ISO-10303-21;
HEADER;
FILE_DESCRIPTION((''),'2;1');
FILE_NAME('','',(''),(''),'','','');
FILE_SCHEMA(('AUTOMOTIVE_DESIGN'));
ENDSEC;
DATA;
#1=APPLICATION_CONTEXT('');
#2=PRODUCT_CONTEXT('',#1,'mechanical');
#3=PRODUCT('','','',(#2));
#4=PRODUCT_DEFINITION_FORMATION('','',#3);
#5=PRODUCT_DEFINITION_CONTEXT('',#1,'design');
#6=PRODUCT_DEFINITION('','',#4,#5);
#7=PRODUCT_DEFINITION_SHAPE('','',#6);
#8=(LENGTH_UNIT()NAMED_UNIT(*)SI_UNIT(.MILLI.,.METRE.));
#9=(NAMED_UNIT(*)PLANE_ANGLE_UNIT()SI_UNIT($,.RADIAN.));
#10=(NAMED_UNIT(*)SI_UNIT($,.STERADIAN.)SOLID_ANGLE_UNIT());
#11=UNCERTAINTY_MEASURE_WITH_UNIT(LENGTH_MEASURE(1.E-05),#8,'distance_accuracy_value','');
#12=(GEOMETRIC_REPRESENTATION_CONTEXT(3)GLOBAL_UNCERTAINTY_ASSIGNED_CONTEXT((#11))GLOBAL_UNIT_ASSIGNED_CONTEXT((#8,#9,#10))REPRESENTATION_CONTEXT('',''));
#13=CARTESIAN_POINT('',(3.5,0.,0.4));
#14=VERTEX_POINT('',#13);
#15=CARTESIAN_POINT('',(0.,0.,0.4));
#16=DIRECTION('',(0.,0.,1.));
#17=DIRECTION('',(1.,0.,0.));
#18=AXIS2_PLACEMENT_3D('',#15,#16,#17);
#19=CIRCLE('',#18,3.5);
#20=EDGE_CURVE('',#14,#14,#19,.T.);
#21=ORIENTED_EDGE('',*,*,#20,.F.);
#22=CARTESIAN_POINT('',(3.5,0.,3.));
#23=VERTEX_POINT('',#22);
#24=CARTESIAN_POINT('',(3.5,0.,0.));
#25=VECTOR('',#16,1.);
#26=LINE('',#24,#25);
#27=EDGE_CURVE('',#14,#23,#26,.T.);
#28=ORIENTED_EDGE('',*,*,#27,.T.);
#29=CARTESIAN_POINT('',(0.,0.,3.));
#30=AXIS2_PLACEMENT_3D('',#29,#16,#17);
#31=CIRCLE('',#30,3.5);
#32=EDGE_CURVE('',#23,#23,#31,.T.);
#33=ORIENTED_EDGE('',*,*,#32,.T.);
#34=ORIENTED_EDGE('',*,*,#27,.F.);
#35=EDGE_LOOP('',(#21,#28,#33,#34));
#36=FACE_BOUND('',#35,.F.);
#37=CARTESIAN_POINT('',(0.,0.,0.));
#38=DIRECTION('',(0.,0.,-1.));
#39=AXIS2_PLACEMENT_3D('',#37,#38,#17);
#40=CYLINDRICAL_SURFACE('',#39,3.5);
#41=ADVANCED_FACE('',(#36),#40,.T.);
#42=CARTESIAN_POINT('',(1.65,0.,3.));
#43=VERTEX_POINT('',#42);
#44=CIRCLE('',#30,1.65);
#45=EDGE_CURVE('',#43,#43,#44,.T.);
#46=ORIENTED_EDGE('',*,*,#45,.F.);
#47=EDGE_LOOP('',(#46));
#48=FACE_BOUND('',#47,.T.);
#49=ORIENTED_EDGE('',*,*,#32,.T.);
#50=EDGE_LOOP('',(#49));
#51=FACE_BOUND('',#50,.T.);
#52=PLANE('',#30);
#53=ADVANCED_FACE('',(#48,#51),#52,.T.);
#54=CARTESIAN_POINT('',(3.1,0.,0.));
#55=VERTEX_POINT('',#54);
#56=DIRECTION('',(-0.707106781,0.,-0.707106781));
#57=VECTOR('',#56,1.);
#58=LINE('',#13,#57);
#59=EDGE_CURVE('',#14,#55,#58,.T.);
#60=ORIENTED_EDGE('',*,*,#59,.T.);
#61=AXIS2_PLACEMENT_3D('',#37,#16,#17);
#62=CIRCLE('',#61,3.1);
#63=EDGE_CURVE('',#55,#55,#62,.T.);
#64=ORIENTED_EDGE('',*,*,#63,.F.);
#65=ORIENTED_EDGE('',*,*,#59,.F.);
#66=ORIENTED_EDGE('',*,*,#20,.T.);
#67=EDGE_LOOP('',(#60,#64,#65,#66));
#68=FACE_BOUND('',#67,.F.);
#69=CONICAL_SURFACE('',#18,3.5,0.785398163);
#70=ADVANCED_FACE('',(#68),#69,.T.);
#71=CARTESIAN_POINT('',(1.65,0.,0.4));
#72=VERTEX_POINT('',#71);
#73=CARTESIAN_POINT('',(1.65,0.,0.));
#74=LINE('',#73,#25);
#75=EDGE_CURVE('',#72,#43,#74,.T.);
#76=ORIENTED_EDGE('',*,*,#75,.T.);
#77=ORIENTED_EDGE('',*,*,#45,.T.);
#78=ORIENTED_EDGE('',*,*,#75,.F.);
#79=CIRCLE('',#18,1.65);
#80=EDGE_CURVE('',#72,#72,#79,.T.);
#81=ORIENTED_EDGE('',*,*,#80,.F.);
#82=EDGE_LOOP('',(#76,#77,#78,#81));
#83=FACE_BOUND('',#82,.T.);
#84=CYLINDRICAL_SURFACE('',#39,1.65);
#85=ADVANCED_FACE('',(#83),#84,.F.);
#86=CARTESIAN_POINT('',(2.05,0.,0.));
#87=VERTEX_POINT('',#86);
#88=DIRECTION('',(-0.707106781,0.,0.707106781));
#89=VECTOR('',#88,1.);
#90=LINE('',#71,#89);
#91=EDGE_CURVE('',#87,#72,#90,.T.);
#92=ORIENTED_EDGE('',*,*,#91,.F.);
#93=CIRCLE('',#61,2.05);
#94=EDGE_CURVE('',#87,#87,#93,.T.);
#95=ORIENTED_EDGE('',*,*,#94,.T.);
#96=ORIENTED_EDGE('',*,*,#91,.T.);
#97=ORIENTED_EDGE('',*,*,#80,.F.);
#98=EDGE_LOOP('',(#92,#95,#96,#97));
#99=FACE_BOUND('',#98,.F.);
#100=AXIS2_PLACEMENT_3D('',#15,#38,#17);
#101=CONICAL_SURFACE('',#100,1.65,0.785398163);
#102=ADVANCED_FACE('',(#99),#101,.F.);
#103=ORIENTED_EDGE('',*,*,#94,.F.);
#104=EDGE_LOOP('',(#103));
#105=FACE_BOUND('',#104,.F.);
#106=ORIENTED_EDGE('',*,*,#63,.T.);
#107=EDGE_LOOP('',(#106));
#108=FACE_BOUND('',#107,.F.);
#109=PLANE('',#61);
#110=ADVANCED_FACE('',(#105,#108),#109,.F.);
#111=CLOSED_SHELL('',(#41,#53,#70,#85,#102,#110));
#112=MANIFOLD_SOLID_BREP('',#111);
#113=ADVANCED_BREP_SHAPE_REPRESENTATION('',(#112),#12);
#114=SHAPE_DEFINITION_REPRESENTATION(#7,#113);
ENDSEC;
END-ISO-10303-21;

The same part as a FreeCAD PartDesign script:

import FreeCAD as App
import Part
import Sketcher


def edges_at(feature, points):
    """Names of the edges that pass closest to the given points."""
    edges = feature.Shape.Edges
    near = lambda p: min(range(len(edges)), key=lambda i: edges[i].distToShape(Part.Vertex(*p))[0])
    return sorted({f"Edge{near(p) + 1}" for p in points})

doc = App.newDocument("Part")
body = doc.addObject("PartDesign::Body", "Body")

sketch1 = body.newObject("Sketcher::SketchObject", "Sketch")
sketch1.AttachmentSupport = (doc.getObject("XY_Plane"), [""])
sketch1.MapMode = "FlatFace"
sketch1.addGeometry(Part.Circle(App.Vector(0, 0, 0), App.Vector(0, 0, 1), 1.65), False)
sketch1.addConstraint(Sketcher.Constraint("Coincident", 0, 3, -1, 1))
sketch1.addConstraint(Sketcher.Constraint("Diameter", 0, 3.3))
pad1 = body.newObject("PartDesign::Pad", "Pad")
pad1.Profile = sketch1
pad1.Length = 3
body2 = doc.addObject("PartDesign::Body", "Body001")

sketch2 = body2.newObject("Sketcher::SketchObject", "Sketch001")
sketch2.AttachmentSupport = (doc.getObject("XY_Plane001"), [""])
sketch2.MapMode = "FlatFace"
sketch2.addGeometry(Part.Circle(App.Vector(0, 0, 0), App.Vector(0, 0, 1), 3.5), False)
sketch2.addConstraint(Sketcher.Constraint("Coincident", 0, 3, -1, 1))
sketch2.addConstraint(Sketcher.Constraint("Diameter", 0, 7.0))
pad2 = body2.newObject("PartDesign::Pad", "Pad001")
pad2.Profile = sketch2
pad2.Length = 3
doc.recompute()

boolean = body2.newObject("PartDesign::Boolean", "Boolean")
boolean.Type = "Cut"
boolean.addObjects([body])
doc.recompute()

chamfer = body2.newObject("PartDesign::Chamfer", "Chamfer")
chamfer.Base = (boolean, edges_at(boolean, [(-3.5, 0, 0), (-1.65, 0, 0)]))
chamfer.Size = 0.4

doc.recompute()
